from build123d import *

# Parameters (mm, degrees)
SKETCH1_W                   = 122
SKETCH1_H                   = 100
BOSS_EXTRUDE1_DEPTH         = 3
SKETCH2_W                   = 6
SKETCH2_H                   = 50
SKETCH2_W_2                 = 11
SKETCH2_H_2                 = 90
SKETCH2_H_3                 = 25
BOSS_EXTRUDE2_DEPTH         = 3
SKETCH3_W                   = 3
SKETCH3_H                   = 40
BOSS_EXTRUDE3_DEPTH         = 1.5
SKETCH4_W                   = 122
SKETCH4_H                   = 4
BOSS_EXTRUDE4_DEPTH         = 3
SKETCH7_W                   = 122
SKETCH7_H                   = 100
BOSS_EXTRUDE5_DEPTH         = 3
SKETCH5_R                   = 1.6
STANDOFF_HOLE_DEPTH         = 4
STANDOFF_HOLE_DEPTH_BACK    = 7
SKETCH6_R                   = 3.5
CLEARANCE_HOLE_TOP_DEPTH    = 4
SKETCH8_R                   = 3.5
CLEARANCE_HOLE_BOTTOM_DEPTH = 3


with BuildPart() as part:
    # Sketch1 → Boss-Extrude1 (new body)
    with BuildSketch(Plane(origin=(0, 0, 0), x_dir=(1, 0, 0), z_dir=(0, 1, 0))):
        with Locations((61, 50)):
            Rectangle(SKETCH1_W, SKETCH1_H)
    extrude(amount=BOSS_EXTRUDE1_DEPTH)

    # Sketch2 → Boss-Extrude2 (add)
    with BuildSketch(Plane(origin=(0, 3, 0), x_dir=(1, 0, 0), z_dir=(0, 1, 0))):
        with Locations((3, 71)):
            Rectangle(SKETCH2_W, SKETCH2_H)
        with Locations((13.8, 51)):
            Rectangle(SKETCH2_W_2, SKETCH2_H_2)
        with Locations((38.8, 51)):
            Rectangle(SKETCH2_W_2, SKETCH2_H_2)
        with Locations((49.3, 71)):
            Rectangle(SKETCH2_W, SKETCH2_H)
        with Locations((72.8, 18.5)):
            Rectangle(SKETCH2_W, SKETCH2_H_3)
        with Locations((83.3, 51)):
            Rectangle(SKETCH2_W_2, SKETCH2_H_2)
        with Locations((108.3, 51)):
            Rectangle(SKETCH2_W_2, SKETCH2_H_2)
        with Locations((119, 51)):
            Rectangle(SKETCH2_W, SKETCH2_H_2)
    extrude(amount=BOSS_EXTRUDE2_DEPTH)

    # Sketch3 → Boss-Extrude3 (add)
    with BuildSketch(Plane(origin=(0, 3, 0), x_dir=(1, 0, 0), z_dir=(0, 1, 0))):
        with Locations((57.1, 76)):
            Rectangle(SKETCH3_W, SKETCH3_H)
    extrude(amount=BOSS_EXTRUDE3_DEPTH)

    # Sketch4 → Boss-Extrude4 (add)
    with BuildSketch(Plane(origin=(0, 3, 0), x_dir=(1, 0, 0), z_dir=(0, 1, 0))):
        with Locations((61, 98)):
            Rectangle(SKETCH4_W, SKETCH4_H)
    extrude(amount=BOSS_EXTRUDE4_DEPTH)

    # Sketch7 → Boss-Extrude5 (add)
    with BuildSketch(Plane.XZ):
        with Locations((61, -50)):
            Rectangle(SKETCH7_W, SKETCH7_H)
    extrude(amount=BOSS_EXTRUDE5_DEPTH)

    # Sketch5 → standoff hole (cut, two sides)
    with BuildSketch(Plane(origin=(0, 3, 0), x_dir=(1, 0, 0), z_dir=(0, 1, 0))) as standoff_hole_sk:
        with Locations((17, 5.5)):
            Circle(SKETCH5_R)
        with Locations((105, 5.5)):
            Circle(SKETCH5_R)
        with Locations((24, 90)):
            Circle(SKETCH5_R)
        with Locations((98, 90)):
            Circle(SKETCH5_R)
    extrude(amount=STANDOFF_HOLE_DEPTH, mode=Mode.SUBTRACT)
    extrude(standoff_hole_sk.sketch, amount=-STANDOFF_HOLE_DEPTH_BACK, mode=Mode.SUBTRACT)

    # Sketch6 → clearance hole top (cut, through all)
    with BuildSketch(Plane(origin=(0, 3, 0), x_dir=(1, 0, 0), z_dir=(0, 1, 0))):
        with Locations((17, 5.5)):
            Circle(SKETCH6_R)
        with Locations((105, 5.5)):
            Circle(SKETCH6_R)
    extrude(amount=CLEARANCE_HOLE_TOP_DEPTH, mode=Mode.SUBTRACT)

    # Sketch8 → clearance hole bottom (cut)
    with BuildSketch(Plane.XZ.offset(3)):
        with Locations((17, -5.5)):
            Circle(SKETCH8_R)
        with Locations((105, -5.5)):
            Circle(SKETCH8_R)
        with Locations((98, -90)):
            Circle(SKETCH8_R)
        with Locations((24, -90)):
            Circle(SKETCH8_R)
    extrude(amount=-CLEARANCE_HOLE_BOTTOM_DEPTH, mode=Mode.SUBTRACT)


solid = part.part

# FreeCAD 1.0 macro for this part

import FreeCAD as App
import Part
import Sketcher

V = App.Vector
Q = App.Units.Quantity

doc = App.newDocument("Part")
params = doc.addObject("Spreadsheet::Sheet", "Params")
for row, (alias, value) in enumerate([
    ("sketch1_width", "122 mm"),
    ("sketch1_height", "100 mm"),
    ("pad1_length", "3 mm"),
    ("sketch2_width", "6 mm"),
    ("sketch2_width2", "11 mm"),
    ("sketch2_height", "50 mm"),
    ("sketch2_height2", "90 mm"),
    ("sketch2_height3", "25 mm"),
    ("pad2_length", "3 mm"),
    ("sketch3_width", "3 mm"),
    ("sketch3_height", "40 mm"),
    ("pad3_length", "1.5 mm"),
    ("sketch4_width", "122 mm"),
    ("sketch4_height", "4 mm"),
    ("pad4_length", "3 mm"),
    ("sketch5_width", "122 mm"),
    ("sketch5_height", "100 mm"),
    ("pad5_length", "3 mm"),
    ("sketch6_diameter", "3.2 mm"),
    ("sketch7_diameter", "7 mm"),
    ("sketch8_diameter", "7 mm"),
    ("pocket3_length", "3 mm"),
], start=1):
    params.set(f"A{row}", alias)
    params.set(f"B{row}", "=" + value)
    params.setAlias(f"B{row}", alias)

body = doc.addObject("PartDesign::Body", "Body")

# Sketch on XZ plane
sketch1 = body.newObject("Sketcher::SketchObject", "Sketch")
sketch1.AttachmentSupport = (doc.getObject("XZ_Plane"), [""])
sketch1.MapMode = "FlatFace"
sketch1.addGeometry([
    Part.LineSegment(V(0, -100, 0), V(0, 0, 0)),
    Part.LineSegment(V(0, 0, 0), V(122, 0, 0)),
    Part.LineSegment(V(122, 0, 0), V(122, -100, 0)),
    Part.LineSegment(V(122, -100, 0), V(0, -100, 0)),
], False)
sketch1.addConstraint([
    Sketcher.Constraint("Coincident", 0, 2, 1, 1),
    Sketcher.Constraint("Coincident", 1, 2, 2, 1),
    Sketcher.Constraint("Coincident", 2, 2, 3, 1),
    Sketcher.Constraint("Coincident", 3, 2, 0, 1),
    Sketcher.Constraint("Vertical", 0),
    Sketcher.Constraint("Horizontal", 1),
    Sketcher.Constraint("Vertical", 2),
    Sketcher.Constraint("Horizontal", 3),
    Sketcher.Constraint("Coincident", 0, 2, -1, 1),
    Sketcher.Constraint("DistanceX", 1, 1, 1, 2, Q("122 mm")),
    Sketcher.Constraint("DistanceY", 0, 1, 0, 2, Q("100 mm")),
])
sketch1.setExpression("Constraints[9]", "Params.sketch1_width")
sketch1.setExpression("Constraints[10]", "Params.sketch1_height")
pad1 = body.newObject("PartDesign::Pad", "Pad")
pad1.Profile = sketch1
pad1.setExpression("Length", "Params.pad1_length")
pad1.Reversed = True

# Sketch on XZ plane
sketch2 = body.newObject("Sketcher::SketchObject", "Sketch001")
sketch2.AttachmentSupport = (doc.getObject("XZ_Plane"), [""])
sketch2.MapMode = "FlatFace"
sketch2.AttachmentOffset = App.Placement(V(0, 0, -3), App.Rotation())
sketch2.addGeometry([
    Part.LineSegment(V(0, -96, 0), V(0, -46, 0)),  # 0
    Part.LineSegment(V(0, -46, 0), V(6, -46, 0)),  # 1
    Part.LineSegment(V(6, -46, 0), V(6, -96, 0)),  # 2
    Part.LineSegment(V(6, -96, 0), V(0, -96, 0)),  # 3
    Part.LineSegment(V(8, -96, 0), V(8, -6, 0)),  # 4
    Part.LineSegment(V(8, -6, 0), V(19, -6, 0)),  # 5
    Part.LineSegment(V(19, -6, 0), V(19, -96, 0)),  # 6
    Part.LineSegment(V(19, -96, 0), V(8, -96, 0)),  # 7
    Part.LineSegment(V(33, -96, 0), V(33, -6, 0)),  # 8
    Part.LineSegment(V(33, -6, 0), V(44, -6, 0)),  # 9
    Part.LineSegment(V(44, -6, 0), V(44, -96, 0)),  # 10
    Part.LineSegment(V(44, -96, 0), V(33, -96, 0)),  # 11
    Part.LineSegment(V(46, -96, 0), V(46, -46, 0)),  # 12
    Part.LineSegment(V(46, -46, 0), V(52, -46, 0)),  # 13
    Part.LineSegment(V(52, -46, 0), V(52, -96, 0)),  # 14
    Part.LineSegment(V(52, -96, 0), V(46, -96, 0)),  # 15
    Part.LineSegment(V(70, -31, 0), V(70, -6, 0)),  # 16
    Part.LineSegment(V(70, -6, 0), V(76, -6, 0)),  # 17
    Part.LineSegment(V(76, -6, 0), V(76, -31, 0)),  # 18
    Part.LineSegment(V(76, -31, 0), V(70, -31, 0)),  # 19
    Part.LineSegment(V(78, -96, 0), V(78, -6, 0)),  # 20
    Part.LineSegment(V(78, -6, 0), V(89, -6, 0)),  # 21
    Part.LineSegment(V(89, -6, 0), V(89, -96, 0)),  # 22
    Part.LineSegment(V(89, -96, 0), V(78, -96, 0)),  # 23
    Part.LineSegment(V(103, -96, 0), V(103, -6, 0)),  # 24
    Part.LineSegment(V(103, -6, 0), V(114, -6, 0)),  # 25
    Part.LineSegment(V(114, -6, 0), V(114, -96, 0)),  # 26
    Part.LineSegment(V(114, -96, 0), V(103, -96, 0)),  # 27
    Part.LineSegment(V(116, -96, 0), V(116, -6, 0)),  # 28
    Part.LineSegment(V(116, -6, 0), V(122, -6, 0)),  # 29
    Part.LineSegment(V(122, -6, 0), V(122, -96, 0)),  # 30
    Part.LineSegment(V(122, -96, 0), V(116, -96, 0)),  # 31
], False)
sketch2.addConstraint([
    Sketcher.Constraint("Coincident", 0, 2, 1, 1),
    Sketcher.Constraint("Coincident", 1, 2, 2, 1),
    Sketcher.Constraint("Coincident", 2, 2, 3, 1),
    Sketcher.Constraint("Coincident", 3, 2, 0, 1),
    Sketcher.Constraint("Coincident", 4, 2, 5, 1),
    Sketcher.Constraint("Coincident", 5, 2, 6, 1),
    Sketcher.Constraint("Coincident", 6, 2, 7, 1),
    Sketcher.Constraint("Coincident", 7, 2, 4, 1),
    Sketcher.Constraint("Coincident", 8, 2, 9, 1),
    Sketcher.Constraint("Coincident", 9, 2, 10, 1),
    Sketcher.Constraint("Coincident", 10, 2, 11, 1),
    Sketcher.Constraint("Coincident", 11, 2, 8, 1),
    Sketcher.Constraint("Coincident", 12, 2, 13, 1),
    Sketcher.Constraint("Coincident", 13, 2, 14, 1),
    Sketcher.Constraint("Coincident", 14, 2, 15, 1),
    Sketcher.Constraint("Coincident", 15, 2, 12, 1),
    Sketcher.Constraint("Coincident", 16, 2, 17, 1),
    Sketcher.Constraint("Coincident", 17, 2, 18, 1),
    Sketcher.Constraint("Coincident", 18, 2, 19, 1),
    Sketcher.Constraint("Coincident", 19, 2, 16, 1),
    Sketcher.Constraint("Coincident", 20, 2, 21, 1),
    Sketcher.Constraint("Coincident", 21, 2, 22, 1),
    Sketcher.Constraint("Coincident", 22, 2, 23, 1),
    Sketcher.Constraint("Coincident", 23, 2, 20, 1),
    Sketcher.Constraint("Coincident", 24, 2, 25, 1),
    Sketcher.Constraint("Coincident", 25, 2, 26, 1),
    Sketcher.Constraint("Coincident", 26, 2, 27, 1),
    Sketcher.Constraint("Coincident", 27, 2, 24, 1),
    Sketcher.Constraint("Coincident", 28, 2, 29, 1),
    Sketcher.Constraint("Coincident", 29, 2, 30, 1),
    Sketcher.Constraint("Coincident", 30, 2, 31, 1),
    Sketcher.Constraint("Coincident", 31, 2, 28, 1),
    Sketcher.Constraint("Vertical", 0),
    Sketcher.Constraint("Horizontal", 1),
    Sketcher.Constraint("Vertical", 2),
    Sketcher.Constraint("Horizontal", 3),
    Sketcher.Constraint("Vertical", 4),
    Sketcher.Constraint("Horizontal", 5),
    Sketcher.Constraint("Vertical", 6),
    Sketcher.Constraint("Horizontal", 7),
    Sketcher.Constraint("Vertical", 8),
    Sketcher.Constraint("Horizontal", 9),
    Sketcher.Constraint("Vertical", 10),
    Sketcher.Constraint("Horizontal", 11),
    Sketcher.Constraint("Vertical", 12),
    Sketcher.Constraint("Horizontal", 13),
    Sketcher.Constraint("Vertical", 14),
    Sketcher.Constraint("Horizontal", 15),
    Sketcher.Constraint("Vertical", 16),
    Sketcher.Constraint("Horizontal", 17),
    Sketcher.Constraint("Vertical", 18),
    Sketcher.Constraint("Horizontal", 19),
    Sketcher.Constraint("Vertical", 20),
    Sketcher.Constraint("Horizontal", 21),
    Sketcher.Constraint("Vertical", 22),
    Sketcher.Constraint("Horizontal", 23),
    Sketcher.Constraint("Vertical", 24),
    Sketcher.Constraint("Horizontal", 25),
    Sketcher.Constraint("Vertical", 26),
    Sketcher.Constraint("Horizontal", 27),
    Sketcher.Constraint("Vertical", 28),
    Sketcher.Constraint("Horizontal", 29),
    Sketcher.Constraint("Vertical", 30),
    Sketcher.Constraint("Horizontal", 31),
    Sketcher.Constraint("PointOnObject", 0, 2, -2),
    Sketcher.Constraint("Horizontal", 3, 2, 6, 2),
    Sketcher.Constraint("Horizontal", 5, 2, 8, 2),
    Sketcher.Constraint("Horizontal", 7, 2, 10, 2),
    Sketcher.Constraint("Horizontal", 1, 2, 12, 2),
    Sketcher.Constraint("Horizontal", 11, 2, 14, 2),
    Sketcher.Constraint("Horizontal", 9, 2, 16, 2),
    Sketcher.Constraint("Horizontal", 17, 2, 20, 2),
    Sketcher.Constraint("Horizontal", 15, 2, 22, 2),
    Sketcher.Constraint("Horizontal", 21, 2, 24, 2),
    Sketcher.Constraint("Horizontal", 23, 2, 26, 2),
    Sketcher.Constraint("Horizontal", 25, 2, 28, 2),
    Sketcher.Constraint("Horizontal", 27, 2, 30, 2),
    Sketcher.Constraint("Equal", 7, 9),
    Sketcher.Constraint("Equal", 3, 13),
    Sketcher.Constraint("Equal", 15, 17),
    Sketcher.Constraint("Equal", 11, 21),
    Sketcher.Constraint("Equal", 23, 25),
    Sketcher.Constraint("Equal", 19, 29),
    Sketcher.Constraint("DistanceX", 1, 1, 1, 2, Q("6 mm")),
    Sketcher.Constraint("DistanceX", 5, 1, 5, 2, Q("11 mm")),
    Sketcher.Constraint("DistanceY", 0, 1, 0, 2, Q("50 mm")),
    Sketcher.Constraint("DistanceY", 4, 1, 4, 2, Q("90 mm")),
    Sketcher.Constraint("DistanceY", 16, 1, 16, 2, Q("25 mm")),
    Sketcher.Constraint("DistanceY", 0, 2, -1, 1, Q("46 mm")),
    Sketcher.Constraint("DistanceX", -1, 1, 28, 2, Q("116 mm")),
    Sketcher.Constraint("DistanceX", 5, 2, 8, 2, Q("14 mm")),
    Sketcher.Constraint("DistanceX", 9, 2, 12, 2, Q("2 mm")),
    Sketcher.Constraint("DistanceX", 17, 2, 20, 2, Q("2 mm")),
    Sketcher.Constraint("DistanceX", 21, 2, 24, 2, Q("14 mm")),
    Sketcher.Constraint("DistanceX", -1, 1, 4, 2, Q("8.3 mm")),
    Sketcher.Constraint("DistanceX", -1, 1, 16, 2, Q("69.8 mm")),
])
sketch2.setExpression("Constraints[83]", "Params.sketch2_width")
sketch2.setExpression("Constraints[84]", "Params.sketch2_width2")
sketch2.setExpression("Constraints[85]", "Params.sketch2_height")
sketch2.setExpression("Constraints[86]", "Params.sketch2_height2")
sketch2.setExpression("Constraints[87]", "Params.sketch2_height3")
pad2 = body.newObject("PartDesign::Pad", "Pad001")
pad2.Profile = sketch2
pad2.setExpression("Length", "Params.pad2_length")
pad2.Reversed = True

# Sketch on XZ plane
sketch3 = body.newObject("Sketcher::SketchObject", "Sketch002")
sketch3.AttachmentSupport = (doc.getObject("XZ_Plane"), [""])
sketch3.MapMode = "FlatFace"
sketch3.AttachmentOffset = App.Placement(V(0, 0, -3), App.Rotation())
sketch3.addGeometry([
    Part.LineSegment(V(55.6, -96, 0), V(55.6, -56, 0)),
    Part.LineSegment(V(55.6, -56, 0), V(58.6, -56, 0)),
    Part.LineSegment(V(58.6, -56, 0), V(58.6, -96, 0)),
    Part.LineSegment(V(58.6, -96, 0), V(55.6, -96, 0)),
], False)
sketch3.addConstraint([
    Sketcher.Constraint("Coincident", 0, 2, 1, 1),
    Sketcher.Constraint("Coincident", 1, 2, 2, 1),
    Sketcher.Constraint("Coincident", 2, 2, 3, 1),
    Sketcher.Constraint("Coincident", 3, 2, 0, 1),
    Sketcher.Constraint("Vertical", 0),
    Sketcher.Constraint("Horizontal", 1),
    Sketcher.Constraint("Vertical", 2),
    Sketcher.Constraint("Horizontal", 3),
    Sketcher.Constraint("DistanceX", 1, 1, 1, 2, Q("3 mm")),
    Sketcher.Constraint("DistanceY", 0, 1, 0, 2, Q("40 mm")),
    Sketcher.Constraint("DistanceY", 0, 2, -1, 1, Q("56 mm")),
    Sketcher.Constraint("DistanceX", -1, 1, 0, 2, Q("55.6 mm")),
])
sketch3.setExpression("Constraints[8]", "Params.sketch3_width")
sketch3.setExpression("Constraints[9]", "Params.sketch3_height")
pad3 = body.newObject("PartDesign::Pad", "Pad002")
pad3.Profile = sketch3
pad3.setExpression("Length", "Params.pad3_length")
pad3.Reversed = True

# Sketch on XZ plane
sketch4 = body.newObject("Sketcher::SketchObject", "Sketch003")
sketch4.AttachmentSupport = (doc.getObject("XZ_Plane"), [""])
sketch4.MapMode = "FlatFace"
sketch4.AttachmentOffset = App.Placement(V(0, 0, -3), App.Rotation())
sketch4.addGeometry([
    Part.LineSegment(V(0, -100, 0), V(0, -96, 0)),
    Part.LineSegment(V(0, -96, 0), V(122, -96, 0)),
    Part.LineSegment(V(122, -96, 0), V(122, -100, 0)),
    Part.LineSegment(V(122, -100, 0), V(0, -100, 0)),
], False)
sketch4.addConstraint([
    Sketcher.Constraint("Coincident", 0, 2, 1, 1),
    Sketcher.Constraint("Coincident", 1, 2, 2, 1),
    Sketcher.Constraint("Coincident", 2, 2, 3, 1),
    Sketcher.Constraint("Coincident", 3, 2, 0, 1),
    Sketcher.Constraint("Vertical", 0),
    Sketcher.Constraint("Horizontal", 1),
    Sketcher.Constraint("Vertical", 2),
    Sketcher.Constraint("Horizontal", 3),
    Sketcher.Constraint("PointOnObject", 0, 2, -2),
    Sketcher.Constraint("DistanceX", 1, 1, 1, 2, Q("122 mm")),
    Sketcher.Constraint("DistanceY", 0, 1, 0, 2, Q("4 mm")),
    Sketcher.Constraint("DistanceY", 0, 2, -1, 1, Q("96 mm")),
])
sketch4.setExpression("Constraints[9]", "Params.sketch4_width")
sketch4.setExpression("Constraints[10]", "Params.sketch4_height")
pad4 = body.newObject("PartDesign::Pad", "Pad003")
pad4.Profile = sketch4
pad4.setExpression("Length", "Params.pad4_length")
pad4.Reversed = True

# Sketch on XZ plane
sketch5 = body.newObject("Sketcher::SketchObject", "Sketch004")
sketch5.AttachmentSupport = (doc.getObject("XZ_Plane"), [""])
sketch5.MapMode = "FlatFace"
sketch5.addGeometry([
    Part.LineSegment(V(0, 0, 0), V(0, -100, 0)),
    Part.LineSegment(V(0, -100, 0), V(122, -100, 0)),
    Part.LineSegment(V(122, -100, 0), V(122, 0, 0)),
    Part.LineSegment(V(122, 0, 0), V(0, 0, 0)),
], False)
sketch5.addConstraint([
    Sketcher.Constraint("Coincident", 0, 2, 1, 1),
    Sketcher.Constraint("Coincident", 1, 2, 2, 1),
    Sketcher.Constraint("Coincident", 2, 2, 3, 1),
    Sketcher.Constraint("Coincident", 3, 2, 0, 1),
    Sketcher.Constraint("Vertical", 0),
    Sketcher.Constraint("Horizontal", 1),
    Sketcher.Constraint("Vertical", 2),
    Sketcher.Constraint("Horizontal", 3),
    Sketcher.Constraint("Coincident", 3, 2, -1, 1),
    Sketcher.Constraint("DistanceX", 1, 1, 1, 2, Q("122 mm")),
    Sketcher.Constraint("DistanceY", 0, 2, 0, 1, Q("100 mm")),
])
sketch5.setExpression("Constraints[9]", "Params.sketch5_width")
sketch5.setExpression("Constraints[10]", "Params.sketch5_height")
pad5 = body.newObject("PartDesign::Pad", "Pad004")
pad5.Profile = sketch5
pad5.setExpression("Length", "Params.pad5_length")

# Sketch on XZ plane
sketch6 = body.newObject("Sketcher::SketchObject", "Sketch005")
sketch6.AttachmentSupport = (doc.getObject("XZ_Plane"), [""])
sketch6.MapMode = "FlatFace"
sketch6.AttachmentOffset = App.Placement(V(0, 0, -3), App.Rotation())
sketch6.addGeometry([
    Part.Circle(V(17, -5.5, 0), V(0, 0, 1), 1.6),
    Part.Circle(V(105, -5.5, 0), V(0, 0, 1), 1.6),
    Part.Circle(V(24, -90, 0), V(0, 0, 1), 1.6),
    Part.Circle(V(98, -90, 0), V(0, 0, 1), 1.6),
], False)
sketch6.addConstraint([
    Sketcher.Constraint("Equal", 0, 1),
    Sketcher.Constraint("Equal", 1, 2),
    Sketcher.Constraint("Equal", 2, 3),
    Sketcher.Constraint("Horizontal", 0, 3, 1, 3),
    Sketcher.Constraint("Horizontal", 2, 3, 3, 3),
    Sketcher.Constraint("Diameter", 0, Q("3.2 mm")),
    Sketcher.Constraint("DistanceX", -1, 1, 0, 3, Q("17 mm")),
    Sketcher.Constraint("DistanceX", -1, 1, 1, 3, Q("105 mm")),
    Sketcher.Constraint("DistanceX", -1, 1, 2, 3, Q("24 mm")),
    Sketcher.Constraint("DistanceY", 2, 3, -1, 1, Q("90 mm")),
    Sketcher.Constraint("DistanceX", -1, 1, 3, 3, Q("98 mm")),
    Sketcher.Constraint("DistanceY", 0, 3, -1, 1, Q("5.5 mm")),
])
sketch6.setExpression("Constraints[5]", "Params.sketch6_diameter")
pocket1 = body.newObject("PartDesign::Pocket", "Pocket")
pocket1.Profile = sketch6
pocket1.Type = "ThroughAll"
pocket1.Midplane = True

# Sketch on XZ plane
sketch7 = body.newObject("Sketcher::SketchObject", "Sketch006")
sketch7.AttachmentSupport = (doc.getObject("XZ_Plane"), [""])
sketch7.MapMode = "FlatFace"
sketch7.AttachmentOffset = App.Placement(V(0, 0, -3), App.Rotation())
sketch7.addGeometry([
    Part.Circle(V(17, -5.5, 0), V(0, 0, 1), 3.5),
    Part.Circle(V(105, -5.5, 0), V(0, 0, 1), 3.5),
], False)
sketch7.addConstraint([
    Sketcher.Constraint("Equal", 0, 1),
    Sketcher.Constraint("Horizontal", 0, 3, 1, 3),
    Sketcher.Constraint("Diameter", 0, Q("7 mm")),
    Sketcher.Constraint("DistanceX", -1, 1, 0, 3, Q("17 mm")),
    Sketcher.Constraint("DistanceX", -1, 1, 1, 3, Q("105 mm")),
    Sketcher.Constraint("DistanceY", 0, 3, -1, 1, Q("5.5 mm")),
])
sketch7.setExpression("Constraints[2]", "Params.sketch7_diameter")
pocket2 = body.newObject("PartDesign::Pocket", "Pocket001")
pocket2.Profile = sketch7
pocket2.Type = "ThroughAll"

# Sketch on XZ plane
sketch8 = body.newObject("Sketcher::SketchObject", "Sketch007")
sketch8.AttachmentSupport = (doc.getObject("XZ_Plane"), [""])
sketch8.MapMode = "FlatFace"
sketch8.AttachmentOffset = App.Placement(V(0, 0, 3), App.Rotation())
sketch8.addGeometry([
    Part.Circle(V(17, -5.5, 0), V(0, 0, 1), 3.5),
    Part.Circle(V(105, -5.5, 0), V(0, 0, 1), 3.5),
    Part.Circle(V(98, -90, 0), V(0, 0, 1), 3.5),
    Part.Circle(V(24, -90, 0), V(0, 0, 1), 3.5),
], False)
sketch8.addConstraint([
    Sketcher.Constraint("Equal", 0, 1),
    Sketcher.Constraint("Equal", 1, 2),
    Sketcher.Constraint("Equal", 2, 3),
    Sketcher.Constraint("Horizontal", 0, 3, 1, 3),
    Sketcher.Constraint("Horizontal", 2, 3, 3, 3),
    Sketcher.Constraint("Diameter", 0, Q("7 mm")),
    Sketcher.Constraint("DistanceX", -1, 1, 0, 3, Q("17 mm")),
    Sketcher.Constraint("DistanceX", -1, 1, 1, 3, Q("105 mm")),
    Sketcher.Constraint("DistanceX", -1, 1, 2, 3, Q("98 mm")),
    Sketcher.Constraint("DistanceY", 2, 3, -1, 1, Q("90 mm")),
    Sketcher.Constraint("DistanceX", -1, 1, 3, 3, Q("24 mm")),
    Sketcher.Constraint("DistanceY", 0, 3, -1, 1, Q("5.5 mm")),
])
sketch8.setExpression("Constraints[5]", "Params.sketch8_diameter")
pocket3 = body.newObject("PartDesign::Pocket", "Pocket002")
pocket3.Profile = sketch8
pocket3.setExpression("Length", "Params.pocket3_length")

doc.recompute()
